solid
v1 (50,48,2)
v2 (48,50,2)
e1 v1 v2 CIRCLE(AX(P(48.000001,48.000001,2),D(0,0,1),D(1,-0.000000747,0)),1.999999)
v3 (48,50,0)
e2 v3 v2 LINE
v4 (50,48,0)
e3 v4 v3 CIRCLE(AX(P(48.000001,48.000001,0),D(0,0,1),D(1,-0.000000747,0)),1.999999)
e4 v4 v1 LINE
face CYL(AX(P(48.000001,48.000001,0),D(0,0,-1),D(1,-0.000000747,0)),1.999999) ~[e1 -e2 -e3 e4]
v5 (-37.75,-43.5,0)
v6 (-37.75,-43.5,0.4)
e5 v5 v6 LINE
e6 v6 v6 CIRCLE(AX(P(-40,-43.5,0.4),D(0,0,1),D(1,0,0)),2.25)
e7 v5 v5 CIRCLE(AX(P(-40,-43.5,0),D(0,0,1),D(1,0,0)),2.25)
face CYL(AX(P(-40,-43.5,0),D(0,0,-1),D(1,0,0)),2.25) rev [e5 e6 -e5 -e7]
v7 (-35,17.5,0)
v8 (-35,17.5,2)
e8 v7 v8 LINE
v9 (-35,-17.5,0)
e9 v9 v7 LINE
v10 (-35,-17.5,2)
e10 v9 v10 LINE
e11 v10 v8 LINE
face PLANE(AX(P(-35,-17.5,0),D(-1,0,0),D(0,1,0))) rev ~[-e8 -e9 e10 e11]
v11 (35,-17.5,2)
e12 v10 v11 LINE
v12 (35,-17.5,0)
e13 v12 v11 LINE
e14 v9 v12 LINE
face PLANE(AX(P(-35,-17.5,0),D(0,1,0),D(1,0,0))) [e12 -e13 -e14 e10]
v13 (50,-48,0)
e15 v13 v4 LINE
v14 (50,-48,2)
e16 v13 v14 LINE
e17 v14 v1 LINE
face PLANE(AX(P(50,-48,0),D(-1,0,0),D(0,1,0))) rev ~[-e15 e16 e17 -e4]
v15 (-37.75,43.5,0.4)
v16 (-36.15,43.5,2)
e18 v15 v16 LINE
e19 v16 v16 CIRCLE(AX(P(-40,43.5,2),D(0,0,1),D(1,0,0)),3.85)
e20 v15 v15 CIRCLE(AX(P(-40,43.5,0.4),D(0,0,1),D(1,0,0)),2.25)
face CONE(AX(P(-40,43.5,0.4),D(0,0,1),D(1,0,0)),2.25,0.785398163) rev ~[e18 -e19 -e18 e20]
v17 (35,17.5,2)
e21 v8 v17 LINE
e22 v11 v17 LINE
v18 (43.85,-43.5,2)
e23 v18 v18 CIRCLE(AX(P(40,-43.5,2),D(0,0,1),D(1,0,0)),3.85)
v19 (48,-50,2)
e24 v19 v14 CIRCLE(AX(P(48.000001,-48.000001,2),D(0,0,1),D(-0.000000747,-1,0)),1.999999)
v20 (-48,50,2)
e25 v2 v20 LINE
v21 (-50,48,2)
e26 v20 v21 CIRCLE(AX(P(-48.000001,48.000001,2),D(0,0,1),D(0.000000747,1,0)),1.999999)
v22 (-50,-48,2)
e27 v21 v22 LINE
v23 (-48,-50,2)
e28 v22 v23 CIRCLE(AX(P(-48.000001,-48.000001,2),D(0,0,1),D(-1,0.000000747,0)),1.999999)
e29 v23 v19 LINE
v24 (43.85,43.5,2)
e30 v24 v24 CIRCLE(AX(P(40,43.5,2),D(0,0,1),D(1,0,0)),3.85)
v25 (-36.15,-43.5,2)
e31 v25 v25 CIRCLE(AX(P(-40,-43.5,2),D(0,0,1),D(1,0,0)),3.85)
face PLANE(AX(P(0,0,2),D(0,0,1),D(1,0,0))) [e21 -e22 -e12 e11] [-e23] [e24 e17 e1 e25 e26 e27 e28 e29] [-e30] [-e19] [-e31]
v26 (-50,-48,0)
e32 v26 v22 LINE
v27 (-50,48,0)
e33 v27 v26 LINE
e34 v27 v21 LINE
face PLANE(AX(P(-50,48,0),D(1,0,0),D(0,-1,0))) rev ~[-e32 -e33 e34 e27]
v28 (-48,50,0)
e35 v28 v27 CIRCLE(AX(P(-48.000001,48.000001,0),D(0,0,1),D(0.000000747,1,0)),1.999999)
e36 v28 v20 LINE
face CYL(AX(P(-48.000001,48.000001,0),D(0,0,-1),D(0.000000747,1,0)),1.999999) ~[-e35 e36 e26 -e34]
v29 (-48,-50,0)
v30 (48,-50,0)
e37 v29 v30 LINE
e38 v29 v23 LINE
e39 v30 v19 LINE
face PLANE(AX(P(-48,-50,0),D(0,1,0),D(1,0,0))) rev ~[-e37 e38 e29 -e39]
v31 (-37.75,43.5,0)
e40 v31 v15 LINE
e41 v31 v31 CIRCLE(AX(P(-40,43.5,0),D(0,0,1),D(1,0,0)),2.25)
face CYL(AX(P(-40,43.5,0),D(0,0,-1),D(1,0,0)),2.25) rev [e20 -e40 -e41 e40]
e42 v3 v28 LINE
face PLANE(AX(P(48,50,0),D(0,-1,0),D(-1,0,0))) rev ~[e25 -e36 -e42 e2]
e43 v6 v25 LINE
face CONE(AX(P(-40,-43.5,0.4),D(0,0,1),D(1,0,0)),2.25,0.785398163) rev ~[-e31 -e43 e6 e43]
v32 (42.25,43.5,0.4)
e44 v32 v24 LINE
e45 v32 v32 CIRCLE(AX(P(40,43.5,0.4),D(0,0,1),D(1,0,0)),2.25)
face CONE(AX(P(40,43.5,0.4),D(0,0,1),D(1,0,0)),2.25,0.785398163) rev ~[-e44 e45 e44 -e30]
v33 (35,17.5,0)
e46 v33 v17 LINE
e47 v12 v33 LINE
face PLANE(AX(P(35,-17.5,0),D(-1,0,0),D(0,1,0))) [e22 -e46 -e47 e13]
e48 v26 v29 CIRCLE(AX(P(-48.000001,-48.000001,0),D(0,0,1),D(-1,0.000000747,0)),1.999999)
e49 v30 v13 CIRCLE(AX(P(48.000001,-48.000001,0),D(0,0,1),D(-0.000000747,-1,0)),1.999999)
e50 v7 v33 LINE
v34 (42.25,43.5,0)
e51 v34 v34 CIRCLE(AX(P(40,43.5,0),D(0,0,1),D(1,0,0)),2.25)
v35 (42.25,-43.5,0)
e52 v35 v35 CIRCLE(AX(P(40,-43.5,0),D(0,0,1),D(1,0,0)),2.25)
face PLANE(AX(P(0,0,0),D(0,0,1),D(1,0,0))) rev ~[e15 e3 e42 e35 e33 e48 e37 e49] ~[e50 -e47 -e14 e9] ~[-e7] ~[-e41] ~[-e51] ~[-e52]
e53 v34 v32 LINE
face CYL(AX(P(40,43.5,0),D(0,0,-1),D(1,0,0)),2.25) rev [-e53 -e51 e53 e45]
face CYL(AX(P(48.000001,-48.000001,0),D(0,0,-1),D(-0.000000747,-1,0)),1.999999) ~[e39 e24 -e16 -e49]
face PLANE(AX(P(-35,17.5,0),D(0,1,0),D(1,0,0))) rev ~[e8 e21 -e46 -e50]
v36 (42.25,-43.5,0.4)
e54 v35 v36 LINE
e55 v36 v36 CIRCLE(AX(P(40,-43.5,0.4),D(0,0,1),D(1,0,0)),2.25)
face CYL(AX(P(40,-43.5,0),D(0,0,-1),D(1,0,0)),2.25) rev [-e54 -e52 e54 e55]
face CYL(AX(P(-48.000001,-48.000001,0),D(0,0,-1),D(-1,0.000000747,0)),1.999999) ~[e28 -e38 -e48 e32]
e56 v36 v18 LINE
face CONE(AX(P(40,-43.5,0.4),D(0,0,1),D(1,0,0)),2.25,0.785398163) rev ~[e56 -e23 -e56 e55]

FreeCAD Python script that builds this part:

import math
import FreeCAD as App
import Part
import Sketcher

V = App.Vector


def edges_at(feature, points):
    """Names of the edges that pass closest to the given points."""
    edges = feature.Shape.Edges
    near = lambda p: min(range(len(edges)), key=lambda i: edges[i].distToShape(Part.Vertex(*p))[0])
    return sorted({f"Edge{near(p) + 1}" for p in points})


def add_polygon(sketch, points):
    """Adds a closed chain of lines whose ends are joined by coincident constraints."""
    first, n = sketch.GeometryCount, len(points)
    for a, b in zip(points, points[1:] + points[:1]):
        sketch.addGeometry(Part.LineSegment(App.Vector(*a, 0), App.Vector(*b, 0)), False)
    for i in range(n):
        sketch.addConstraint(Sketcher.Constraint("Coincident", first + i, 2, first + (i + 1) % n, 1))

doc = App.newDocument("Part")
params = doc.addObject("Spreadsheet::Sheet", "Params")
for row, (alias, value) in enumerate([
    ("sketch1_radius", "1.999999 mm"),
    ("sketch1_diameter", "4.5 mm"),
    ("sketch1_width", "96 mm"),
    ("sketch1_width2", "70 mm"),
    ("sketch1_height", "35 mm"),
    ("pad1_length", "2 mm"),
    ("chamfer_size", "1.6 mm"),
], start=1):
    params.set(f"A{row}", alias)
    params.set(f"B{row}", "=" + value)
    params.setAlias(f"B{row}", alias)

body = doc.addObject("PartDesign::Body", "Body")

# Sketch on XY plane
sketch1 = body.newObject("Sketcher::SketchObject", "Sketch")
sketch1.AttachmentSupport = (doc.getObject("XY_Plane"), [""])
sketch1.MapMode = "FlatFace"
sketch1.addGeometry(Part.LineSegment(V(-48, -50, 0), V(48, -50, 0)), False)  # 0
sketch1.addGeometry(Part.ArcOfCircle(Part.Circle(V(48.000001, -48.000001, 0), V(0, 0, 1), 1.999999), math.radians(-90.000043), math.radians(0.000043)), False)  # 1
sketch1.addGeometry(Part.LineSegment(V(50, -48, 0), V(50, 48, 0)), False)  # 2
sketch1.addGeometry(Part.ArcOfCircle(Part.Circle(V(48.000001, 48.000001, 0), V(0, 0, 1), 1.999999), math.radians(-0.000043), math.radians(90.000043)), False)  # 3
sketch1.addGeometry(Part.LineSegment(V(48, 50, 0), V(-48, 50, 0)), False)  # 4
sketch1.addGeometry(Part.ArcOfCircle(Part.Circle(V(-48.000001, 48.000001, 0), V(0, 0, 1), 1.999999), math.radians(89.999957), math.radians(180.000043)), False)  # 5
sketch1.addGeometry(Part.LineSegment(V(-50, 48, 0), V(-50, -48, 0)), False)  # 6
sketch1.addGeometry(Part.ArcOfCircle(Part.Circle(V(-48.000001, -48.000001, 0), V(0, 0, 1), 1.999999), math.radians(179.999957), math.radians(270.000043)), False)  # 7
sketch1.addGeometry(Part.Circle(V(-40, -43.5, 0), V(0, 0, 1), 2.25), False)  # 8
sketch1.addGeometry(Part.Circle(V(40, -43.5, 0), V(0, 0, 1), 2.25), False)  # 9
sketch1.addGeometry(Part.Circle(V(-40, 43.5, 0), V(0, 0, 1), 2.25), False)  # 10
add_polygon(sketch1, [(35, -17.5), (-35, -17.5), (-35, 17.5), (35, 17.5)])  # lines 11-14
sketch1.addGeometry(Part.Circle(V(40, 43.5, 0), V(0, 0, 1), 2.25), False)  # 15
sketch1.addConstraint([
    Sketcher.Constraint("Tangent", 0, 2, 1, 1),
    Sketcher.Constraint("Tangent", 1, 2, 2, 1),
    Sketcher.Constraint("Tangent", 2, 2, 3, 1),
    Sketcher.Constraint("Tangent", 3, 2, 4, 1),
    Sketcher.Constraint("Tangent", 4, 2, 5, 1),
    Sketcher.Constraint("Tangent", 5, 2, 6, 1),
    Sketcher.Constraint("Tangent", 6, 2, 7, 1),
    Sketcher.Constraint("Tangent", 7, 2, 0, 1),
    Sketcher.Constraint("Horizontal", 0),
    Sketcher.Constraint("Vertical", 2),
    Sketcher.Constraint("Horizontal", 4),
    Sketcher.Constraint("Vertical", 6),
    Sketcher.Constraint("Horizontal", 11),
    Sketcher.Constraint("Vertical", 12),
    Sketcher.Constraint("Horizontal", 13),
    Sketcher.Constraint("Vertical", 14),
    Sketcher.Constraint("Equal", 1, 3),
    Sketcher.Constraint("Equal", 3, 5),
    Sketcher.Constraint("Equal", 5, 7),
    Sketcher.Constraint("Equal", 8, 9),
    Sketcher.Constraint("Equal", 9, 10),
    Sketcher.Constraint("Equal", 10, 15),
    Sketcher.Constraint("Symmetric", 1, 3, 5, 3, -1, 1),
    Sketcher.Constraint("Symmetric", 9, 3, 10, 3, -1, 1),
    Sketcher.Constraint("Symmetric", 8, 3, 15, 3, -1, 1),
    Sketcher.Constraint("Symmetric", 11, 2, 13, 2, -1, 1),
    Sketcher.Constraint("Symmetric", 8, 3, 9, 3, -2),
    Sketcher.Constraint("Equal", 4, 2),
    Sketcher.Constraint("Radius", 1, 1.999999),
    Sketcher.Constraint("Diameter", 8, 4.5),
    Sketcher.Constraint("DistanceX", 0, 1, 0, 2, 96.0),
    Sketcher.Constraint("DistanceX", 11, 2, 11, 1, 70.0),
    Sketcher.Constraint("DistanceY", 12, 1, 12, 2, 35.0),
    Sketcher.Constraint("DistanceX", 8, 3, -1, 1, 40.0),
    Sketcher.Constraint("DistanceY", 8, 3, 10, 3, 87.0),
])
sketch1.setExpression("Constraints[32]", "Params.sketch1_radius")
sketch1.setExpression("Constraints[33]", "Params.sketch1_diameter")
sketch1.setExpression("Constraints[34]", "Params.sketch1_width")
sketch1.setExpression("Constraints[35]", "Params.sketch1_width2")
sketch1.setExpression("Constraints[36]", "Params.sketch1_height")
pad1 = body.newObject("PartDesign::Pad", "Pad")
pad1.Profile = sketch1
pad1.setExpression("Length", "Params.pad1_length")
doc.recompute()

chamfer = body.newObject("PartDesign::Chamfer", "Chamfer")
chamfer.Base = (pad1, edges_at(pad1, [
    (-42.25, 43.5, 2),
    (37.75, 43.5, 2),
    (37.75, -43.5, 2),
    (-42.25, -43.5, 2),
]))
chamfer.setExpression("Size", "Params.chamfer_size")

doc.recompute()
